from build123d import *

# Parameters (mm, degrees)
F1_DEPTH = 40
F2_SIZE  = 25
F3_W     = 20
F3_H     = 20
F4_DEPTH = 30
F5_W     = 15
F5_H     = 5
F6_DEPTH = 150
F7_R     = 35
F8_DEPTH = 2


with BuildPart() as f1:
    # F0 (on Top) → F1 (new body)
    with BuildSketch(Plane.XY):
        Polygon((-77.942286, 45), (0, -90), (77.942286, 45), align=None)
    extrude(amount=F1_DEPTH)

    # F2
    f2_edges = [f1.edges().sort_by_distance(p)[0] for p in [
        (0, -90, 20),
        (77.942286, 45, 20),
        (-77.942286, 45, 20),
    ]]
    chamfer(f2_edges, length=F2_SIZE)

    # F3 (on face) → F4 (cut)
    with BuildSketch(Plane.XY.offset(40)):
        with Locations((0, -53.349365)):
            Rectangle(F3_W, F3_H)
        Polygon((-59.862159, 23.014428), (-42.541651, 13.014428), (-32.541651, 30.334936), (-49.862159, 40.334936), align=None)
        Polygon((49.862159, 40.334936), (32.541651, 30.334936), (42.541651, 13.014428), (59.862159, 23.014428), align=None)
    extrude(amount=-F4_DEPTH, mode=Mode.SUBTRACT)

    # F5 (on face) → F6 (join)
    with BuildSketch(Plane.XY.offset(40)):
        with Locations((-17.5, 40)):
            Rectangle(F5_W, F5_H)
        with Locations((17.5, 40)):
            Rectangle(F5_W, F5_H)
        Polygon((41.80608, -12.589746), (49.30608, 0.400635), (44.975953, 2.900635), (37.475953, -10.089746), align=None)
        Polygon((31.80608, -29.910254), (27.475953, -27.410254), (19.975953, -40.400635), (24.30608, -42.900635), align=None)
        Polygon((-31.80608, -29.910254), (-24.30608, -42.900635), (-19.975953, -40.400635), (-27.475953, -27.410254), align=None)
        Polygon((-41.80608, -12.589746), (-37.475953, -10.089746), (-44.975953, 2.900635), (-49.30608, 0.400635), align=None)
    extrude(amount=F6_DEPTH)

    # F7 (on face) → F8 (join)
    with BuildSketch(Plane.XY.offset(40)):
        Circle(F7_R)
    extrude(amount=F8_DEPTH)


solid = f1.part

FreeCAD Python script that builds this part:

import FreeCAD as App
import Part
import Sketcher
from FreeCAD import Vector
Q = App.Units.Quantity


def edges_at(feature, points):
    """Names of the edges that pass closest to the given points."""
    edges = feature.Shape.Edges
    near = lambda p: min(range(len(edges)), key=lambda i: edges[i].distToShape(Part.Vertex(*p))[0])
    return sorted({f"Edge{near(p) + 1}" for p in points})

doc = App.newDocument("Part")
body = doc.addObject("PartDesign::Body", "Body")

# Sketch on XY plane
sketch1 = body.newObject("Sketcher::SketchObject", "Sketch")
sketch1.AttachmentSupport = (doc.getObject("XY_Plane"), [""])
sketch1.MapMode = "FlatFace"
sketch1.addGeometry([
    Part.LineSegment(Vector(-78, 45, 0), Vector(0, -90, 0)),
    Part.LineSegment(Vector(0, -90, 0), Vector(78, 45, 0)),
    Part.LineSegment(Vector(78, 45, 0), Vector(-78, 45, 0)),
], False)
sketch1.addConstraint([
    Sketcher.Constraint("Coincident", 0, 2, 1, 1),
    Sketcher.Constraint("Coincident", 1, 2, 2, 1),
    Sketcher.Constraint("Coincident", 2, 2, 0, 1),
    Sketcher.Constraint("Horizontal", 2),
    Sketcher.Constraint("PointOnObject", 0, 2, -2),
    Sketcher.Constraint("Equal", 0, 1),
    Sketcher.Constraint("Angle", 0, Q("-60 deg")),
    Sketcher.Constraint("DistanceY", 0, 2, -1, 1, Q("90 mm")),
    Sketcher.Constraint("DistanceY", -1, 1, 1, 2, Q("45 mm")),
])
pad1 = body.newObject("PartDesign::Pad", "Pad")
pad1.Profile = sketch1
pad1.Length = 40
doc.recompute()

chamfer = body.newObject("PartDesign::Chamfer", "Chamfer")
chamfer.Base = (pad1, edges_at(pad1, [(0, -90, 20), (77.942, 45, 20), (-77.942, 45, 20)]))
chamfer.Size = 25

# Sketch on XY plane
sketch2 = body.newObject("Sketcher::SketchObject", "Sketch001")
sketch2.AttachmentSupport = (doc.getObject("XY_Plane"), [""])
sketch2.MapMode = "FlatFace"
sketch2.AttachmentOffset = App.Placement(Vector(0, 0, 40), App.Rotation())
sketch2.addGeometry([
    Part.LineSegment(Vector(-10, -43, 0), Vector(-10, -63, 0)),  # 0
    Part.LineSegment(Vector(-10, -63, 0), Vector(10, -63, 0)),  # 1
    Part.LineSegment(Vector(10, -63, 0), Vector(10, -43, 0)),  # 2
    Part.LineSegment(Vector(10, -43, 0), Vector(-10, -43, 0)),  # 3
    Part.LineSegment(Vector(-60, 23, 0), Vector(-43, 13, 0)),  # 4
    Part.LineSegment(Vector(-43, 13, 0), Vector(-33, 30, 0)),  # 5
    Part.LineSegment(Vector(-33, 30, 0), Vector(-50, 40, 0)),  # 6
    Part.LineSegment(Vector(-50, 40, 0), Vector(-60, 23, 0)),  # 7
    Part.LineSegment(Vector(50, 40, 0), Vector(33, 30, 0)),  # 8
    Part.LineSegment(Vector(33, 30, 0), Vector(43, 13, 0)),  # 9
    Part.LineSegment(Vector(43, 13, 0), Vector(60, 23, 0)),  # 10
    Part.LineSegment(Vector(60, 23, 0), Vector(50, 40, 0)),  # 11
], False)
sketch2.addConstraint([
    Sketcher.Constraint("Coincident", 0, 2, 1, 1),
    Sketcher.Constraint("Coincident", 1, 2, 2, 1),
    Sketcher.Constraint("Coincident", 2, 2, 3, 1),
    Sketcher.Constraint("Coincident", 3, 2, 0, 1),
    Sketcher.Constraint("Coincident", 4, 2, 5, 1),
    Sketcher.Constraint("Coincident", 5, 2, 6, 1),
    Sketcher.Constraint("Coincident", 6, 2, 7, 1),
    Sketcher.Constraint("Coincident", 7, 2, 4, 1),
    Sketcher.Constraint("Coincident", 8, 2, 9, 1),
    Sketcher.Constraint("Coincident", 9, 2, 10, 1),
    Sketcher.Constraint("Coincident", 10, 2, 11, 1),
    Sketcher.Constraint("Coincident", 11, 2, 8, 1),
    Sketcher.Constraint("Vertical", 0),
    Sketcher.Constraint("Horizontal", 1),
    Sketcher.Constraint("Vertical", 2),
    Sketcher.Constraint("Horizontal", 3),
    Sketcher.Constraint("Symmetric", 5, 2, 8, 2, -2),
    Sketcher.Constraint("Symmetric", 4, 2, 9, 2, -2),
    Sketcher.Constraint("Symmetric", 7, 2, 10, 2, -2),
    Sketcher.Constraint("Symmetric", 6, 2, 11, 2, -2),
    Sketcher.Constraint("Perpendicular", 4, 5),
    Sketcher.Constraint("Perpendicular", 5, 6),
    Sketcher.Constraint("Perpendicular", 6, 7),
    Sketcher.Constraint("Equal", 3, 0),
    Sketcher.Constraint("Equal", 4, 5),
    Sketcher.Constraint("DistanceX", 1, 1, 1, 2, Q("20 mm")),
    Sketcher.Constraint("Angle", 4, Q("-30 deg")),
    Sketcher.Constraint("Distance", 4, Q("20 mm")),
    Sketcher.Constraint("DistanceX", 0, 2, -1, 1, Q("10 mm")),
    Sketcher.Constraint("DistanceY", 3, 2, 5, 2, Q("73.684301 mm")),
    Sketcher.Constraint("DistanceX", 4, 2, -1, 1, Q("42.541651 mm")),
    Sketcher.Constraint("DistanceY", 0, 2, -1, 1, Q("63.349365 mm")),
])
pocket1 = body.newObject("PartDesign::Pocket", "Pocket")
pocket1.Profile = sketch2
pocket1.Length = 30

# Sketch on XY plane
sketch3 = body.newObject("Sketcher::SketchObject", "Sketch002")
sketch3.AttachmentSupport = (doc.getObject("XY_Plane"), [""])
sketch3.MapMode = "FlatFace"
sketch3.AttachmentOffset = App.Placement(Vector(0, 0, 40), App.Rotation())
sketch3.addGeometry([
    Part.LineSegment(Vector(-25, 42.5, 0), Vector(-25, 37.5, 0)),  # 0
    Part.LineSegment(Vector(-25, 37.5, 0), Vector(-10, 37.5, 0)),  # 1
    Part.LineSegment(Vector(-10, 37.5, 0), Vector(-10, 42.5, 0)),  # 2
    Part.LineSegment(Vector(-10, 42.5, 0), Vector(-25, 42.5, 0)),  # 3
    Part.LineSegment(Vector(10, 42.5, 0), Vector(10, 37.5, 0)),  # 4
    Part.LineSegment(Vector(10, 37.5, 0), Vector(25, 37.5, 0)),  # 5
    Part.LineSegment(Vector(25, 37.5, 0), Vector(25, 42.5, 0)),  # 6
    Part.LineSegment(Vector(25, 42.5, 0), Vector(10, 42.5, 0)),  # 7
    Part.LineSegment(Vector(41.8, -12.6, 0), Vector(49.3, 0.4, 0)),  # 8
    Part.LineSegment(Vector(49.3, 0.4, 0), Vector(45, 2.9, 0)),  # 9
    Part.LineSegment(Vector(45, 2.9, 0), Vector(37.5, -10.1, 0)),  # 10
    Part.LineSegment(Vector(37.5, -10.1, 0), Vector(41.8, -12.6, 0)),  # 11
    Part.LineSegment(Vector(31.8, -29.9, 0), Vector(27.5, -27.4, 0)),  # 12
    Part.LineSegment(Vector(27.5, -27.4, 0), Vector(20, -40.4, 0)),  # 13
    Part.LineSegment(Vector(20, -40.4, 0), Vector(24.3, -42.9, 0)),  # 14
    Part.LineSegment(Vector(24.3, -42.9, 0), Vector(31.8, -29.9, 0)),  # 15
    Part.LineSegment(Vector(-31.8, -29.9, 0), Vector(-24.3, -42.9, 0)),  # 16
    Part.LineSegment(Vector(-24.3, -42.9, 0), Vector(-20, -40.4, 0)),  # 17
    Part.LineSegment(Vector(-20, -40.4, 0), Vector(-27.5, -27.4, 0)),  # 18
    Part.LineSegment(Vector(-27.5, -27.4, 0), Vector(-31.8, -29.9, 0)),  # 19
    Part.LineSegment(Vector(-41.8, -12.6, 0), Vector(-37.5, -10.1, 0)),  # 20
    Part.LineSegment(Vector(-37.5, -10.1, 0), Vector(-45, 2.9, 0)),  # 21
    Part.LineSegment(Vector(-45, 2.9, 0), Vector(-49.3, 0.4, 0)),  # 22
    Part.LineSegment(Vector(-49.3, 0.4, 0), Vector(-41.8, -12.6, 0)),  # 23
], False)
sketch3.addConstraint([
    Sketcher.Constraint("Coincident", 0, 2, 1, 1),
    Sketcher.Constraint("Coincident", 1, 2, 2, 1),
    Sketcher.Constraint("Coincident", 2, 2, 3, 1),
    Sketcher.Constraint("Coincident", 3, 2, 0, 1),
    Sketcher.Constraint("Coincident", 4, 2, 5, 1),
    Sketcher.Constraint("Coincident", 5, 2, 6, 1),
    Sketcher.Constraint("Coincident", 6, 2, 7, 1),
    Sketcher.Constraint("Coincident", 7, 2, 4, 1),
    Sketcher.Constraint("Coincident", 8, 2, 9, 1),
    Sketcher.Constraint("Coincident", 9, 2, 10, 1),
    Sketcher.Constraint("Coincident", 10, 2, 11, 1),
    Sketcher.Constraint("Coincident", 11, 2, 8, 1),
    Sketcher.Constraint("Coincident", 12, 2, 13, 1),
    Sketcher.Constraint("Coincident", 13, 2, 14, 1),
    Sketcher.Constraint("Coincident", 14, 2, 15, 1),
    Sketcher.Constraint("Coincident", 15, 2, 12, 1),
    Sketcher.Constraint("Coincident", 16, 2, 17, 1),
    Sketcher.Constraint("Coincident", 17, 2, 18, 1),
    Sketcher.Constraint("Coincident", 18, 2, 19, 1),
    Sketcher.Constraint("Coincident", 19, 2, 16, 1),
    Sketcher.Constraint("Coincident", 20, 2, 21, 1),
    Sketcher.Constraint("Coincident", 21, 2, 22, 1),
    Sketcher.Constraint("Coincident", 22, 2, 23, 1),
    Sketcher.Constraint("Coincident", 23, 2, 20, 1),
    Sketcher.Constraint("Vertical", 0),
    Sketcher.Constraint("Horizontal", 1),
    Sketcher.Constraint("Vertical", 2),
    Sketcher.Constraint("Horizontal", 3),
    Sketcher.Constraint("Vertical", 4),
    Sketcher.Constraint("Horizontal", 5),
    Sketcher.Constraint("Vertical", 6),
    Sketcher.Constraint("Horizontal", 7),
    Sketcher.Constraint("Symmetric", 1, 2, 4, 2, -2),
    Sketcher.Constraint("Symmetric", 3, 2, 6, 2, -2),
    Sketcher.Constraint("Symmetric", 14, 2, 16, 2, -2),
    Sketcher.Constraint("Symmetric", 13, 2, 17, 2, -2),
    Sketcher.Constraint("Symmetric", 12, 2, 18, 2, -2),
    Sketcher.Constraint("Symmetric", 15, 2, 19, 2, -2),
    Sketcher.Constraint("Symmetric", 10, 2, 20, 2, -2),
    Sketcher.Constraint("Symmetric", 9, 2, 21, 2, -2),
    Sketcher.Constraint("Symmetric", 8, 2, 22, 2, -2),
    Sketcher.Constraint("Symmetric", 11, 2, 23, 2, -2),
    Sketcher.Constraint("Perpendicular", 8, 9),
    Sketcher.Constraint("Perpendicular", 9, 10),
    Sketcher.Constraint("Perpendicular", 10, 11),
    Sketcher.Constraint("Parallel", 11, 12),
    Sketcher.Constraint("Perpendicular", 12, 13),
    Sketcher.Constraint("Perpendicular", 13, 14),
    Sketcher.Constraint("Perpendicular", 14, 15),
    Sketcher.Constraint("Equal", 11, 12),
    Sketcher.Constraint("Equal", 10, 13),
    Sketcher.Constraint("DistanceX", 1, 1, 1, 2, Q("15 mm")),
    Sketcher.Constraint("DistanceY", 0, 2, 0, 1, Q("5 mm")),
    Sketcher.Constraint("Angle", 8, Q("60 deg")),
    Sketcher.Constraint("Distance", 8, Q("15 mm")),
    Sketcher.Constraint("Distance", 9, Q("5 mm")),
    Sketcher.Constraint("DistanceX", 0, 2, -1, 1, Q("25 mm")),
    Sketcher.Constraint("DistanceX", 12, 2, 10, 2, Q("10 mm")),
    Sketcher.Constraint("DistanceY", -1, 1, 0, 2, Q("37.5 mm")),
    Sketcher.Constraint("DistanceX", -1, 1, 8, 2, Q("49.30608 mm")),
    Sketcher.Constraint("DistanceY", 12, 2, 9, 2, Q("30.310889 mm")),
    Sketcher.Constraint("DistanceY", -1, 1, 8, 2, Q("0.400635 mm")),
])
pad2 = body.newObject("PartDesign::Pad", "Pad001")
pad2.Profile = sketch3
pad2.Length = 150

# Sketch on XY plane
sketch4 = body.newObject("Sketcher::SketchObject", "Sketch003")
sketch4.AttachmentSupport = (doc.getObject("XY_Plane"), [""])
sketch4.MapMode = "FlatFace"
sketch4.AttachmentOffset = App.Placement(Vector(0, 0, 40), App.Rotation())
sketch4.addGeometry(Part.Circle(Vector(0, 0, 0), Vector(0, 0, 1), 35), False)
sketch4.addConstraint([
    Sketcher.Constraint("Coincident", 0, 3, -1, 1),
    Sketcher.Constraint("Diameter", 0, Q("70 mm")),
])
pad3 = body.newObject("PartDesign::Pad", "Pad002")
pad3.Profile = sketch4
pad3.Length = 2

doc.recompute()
